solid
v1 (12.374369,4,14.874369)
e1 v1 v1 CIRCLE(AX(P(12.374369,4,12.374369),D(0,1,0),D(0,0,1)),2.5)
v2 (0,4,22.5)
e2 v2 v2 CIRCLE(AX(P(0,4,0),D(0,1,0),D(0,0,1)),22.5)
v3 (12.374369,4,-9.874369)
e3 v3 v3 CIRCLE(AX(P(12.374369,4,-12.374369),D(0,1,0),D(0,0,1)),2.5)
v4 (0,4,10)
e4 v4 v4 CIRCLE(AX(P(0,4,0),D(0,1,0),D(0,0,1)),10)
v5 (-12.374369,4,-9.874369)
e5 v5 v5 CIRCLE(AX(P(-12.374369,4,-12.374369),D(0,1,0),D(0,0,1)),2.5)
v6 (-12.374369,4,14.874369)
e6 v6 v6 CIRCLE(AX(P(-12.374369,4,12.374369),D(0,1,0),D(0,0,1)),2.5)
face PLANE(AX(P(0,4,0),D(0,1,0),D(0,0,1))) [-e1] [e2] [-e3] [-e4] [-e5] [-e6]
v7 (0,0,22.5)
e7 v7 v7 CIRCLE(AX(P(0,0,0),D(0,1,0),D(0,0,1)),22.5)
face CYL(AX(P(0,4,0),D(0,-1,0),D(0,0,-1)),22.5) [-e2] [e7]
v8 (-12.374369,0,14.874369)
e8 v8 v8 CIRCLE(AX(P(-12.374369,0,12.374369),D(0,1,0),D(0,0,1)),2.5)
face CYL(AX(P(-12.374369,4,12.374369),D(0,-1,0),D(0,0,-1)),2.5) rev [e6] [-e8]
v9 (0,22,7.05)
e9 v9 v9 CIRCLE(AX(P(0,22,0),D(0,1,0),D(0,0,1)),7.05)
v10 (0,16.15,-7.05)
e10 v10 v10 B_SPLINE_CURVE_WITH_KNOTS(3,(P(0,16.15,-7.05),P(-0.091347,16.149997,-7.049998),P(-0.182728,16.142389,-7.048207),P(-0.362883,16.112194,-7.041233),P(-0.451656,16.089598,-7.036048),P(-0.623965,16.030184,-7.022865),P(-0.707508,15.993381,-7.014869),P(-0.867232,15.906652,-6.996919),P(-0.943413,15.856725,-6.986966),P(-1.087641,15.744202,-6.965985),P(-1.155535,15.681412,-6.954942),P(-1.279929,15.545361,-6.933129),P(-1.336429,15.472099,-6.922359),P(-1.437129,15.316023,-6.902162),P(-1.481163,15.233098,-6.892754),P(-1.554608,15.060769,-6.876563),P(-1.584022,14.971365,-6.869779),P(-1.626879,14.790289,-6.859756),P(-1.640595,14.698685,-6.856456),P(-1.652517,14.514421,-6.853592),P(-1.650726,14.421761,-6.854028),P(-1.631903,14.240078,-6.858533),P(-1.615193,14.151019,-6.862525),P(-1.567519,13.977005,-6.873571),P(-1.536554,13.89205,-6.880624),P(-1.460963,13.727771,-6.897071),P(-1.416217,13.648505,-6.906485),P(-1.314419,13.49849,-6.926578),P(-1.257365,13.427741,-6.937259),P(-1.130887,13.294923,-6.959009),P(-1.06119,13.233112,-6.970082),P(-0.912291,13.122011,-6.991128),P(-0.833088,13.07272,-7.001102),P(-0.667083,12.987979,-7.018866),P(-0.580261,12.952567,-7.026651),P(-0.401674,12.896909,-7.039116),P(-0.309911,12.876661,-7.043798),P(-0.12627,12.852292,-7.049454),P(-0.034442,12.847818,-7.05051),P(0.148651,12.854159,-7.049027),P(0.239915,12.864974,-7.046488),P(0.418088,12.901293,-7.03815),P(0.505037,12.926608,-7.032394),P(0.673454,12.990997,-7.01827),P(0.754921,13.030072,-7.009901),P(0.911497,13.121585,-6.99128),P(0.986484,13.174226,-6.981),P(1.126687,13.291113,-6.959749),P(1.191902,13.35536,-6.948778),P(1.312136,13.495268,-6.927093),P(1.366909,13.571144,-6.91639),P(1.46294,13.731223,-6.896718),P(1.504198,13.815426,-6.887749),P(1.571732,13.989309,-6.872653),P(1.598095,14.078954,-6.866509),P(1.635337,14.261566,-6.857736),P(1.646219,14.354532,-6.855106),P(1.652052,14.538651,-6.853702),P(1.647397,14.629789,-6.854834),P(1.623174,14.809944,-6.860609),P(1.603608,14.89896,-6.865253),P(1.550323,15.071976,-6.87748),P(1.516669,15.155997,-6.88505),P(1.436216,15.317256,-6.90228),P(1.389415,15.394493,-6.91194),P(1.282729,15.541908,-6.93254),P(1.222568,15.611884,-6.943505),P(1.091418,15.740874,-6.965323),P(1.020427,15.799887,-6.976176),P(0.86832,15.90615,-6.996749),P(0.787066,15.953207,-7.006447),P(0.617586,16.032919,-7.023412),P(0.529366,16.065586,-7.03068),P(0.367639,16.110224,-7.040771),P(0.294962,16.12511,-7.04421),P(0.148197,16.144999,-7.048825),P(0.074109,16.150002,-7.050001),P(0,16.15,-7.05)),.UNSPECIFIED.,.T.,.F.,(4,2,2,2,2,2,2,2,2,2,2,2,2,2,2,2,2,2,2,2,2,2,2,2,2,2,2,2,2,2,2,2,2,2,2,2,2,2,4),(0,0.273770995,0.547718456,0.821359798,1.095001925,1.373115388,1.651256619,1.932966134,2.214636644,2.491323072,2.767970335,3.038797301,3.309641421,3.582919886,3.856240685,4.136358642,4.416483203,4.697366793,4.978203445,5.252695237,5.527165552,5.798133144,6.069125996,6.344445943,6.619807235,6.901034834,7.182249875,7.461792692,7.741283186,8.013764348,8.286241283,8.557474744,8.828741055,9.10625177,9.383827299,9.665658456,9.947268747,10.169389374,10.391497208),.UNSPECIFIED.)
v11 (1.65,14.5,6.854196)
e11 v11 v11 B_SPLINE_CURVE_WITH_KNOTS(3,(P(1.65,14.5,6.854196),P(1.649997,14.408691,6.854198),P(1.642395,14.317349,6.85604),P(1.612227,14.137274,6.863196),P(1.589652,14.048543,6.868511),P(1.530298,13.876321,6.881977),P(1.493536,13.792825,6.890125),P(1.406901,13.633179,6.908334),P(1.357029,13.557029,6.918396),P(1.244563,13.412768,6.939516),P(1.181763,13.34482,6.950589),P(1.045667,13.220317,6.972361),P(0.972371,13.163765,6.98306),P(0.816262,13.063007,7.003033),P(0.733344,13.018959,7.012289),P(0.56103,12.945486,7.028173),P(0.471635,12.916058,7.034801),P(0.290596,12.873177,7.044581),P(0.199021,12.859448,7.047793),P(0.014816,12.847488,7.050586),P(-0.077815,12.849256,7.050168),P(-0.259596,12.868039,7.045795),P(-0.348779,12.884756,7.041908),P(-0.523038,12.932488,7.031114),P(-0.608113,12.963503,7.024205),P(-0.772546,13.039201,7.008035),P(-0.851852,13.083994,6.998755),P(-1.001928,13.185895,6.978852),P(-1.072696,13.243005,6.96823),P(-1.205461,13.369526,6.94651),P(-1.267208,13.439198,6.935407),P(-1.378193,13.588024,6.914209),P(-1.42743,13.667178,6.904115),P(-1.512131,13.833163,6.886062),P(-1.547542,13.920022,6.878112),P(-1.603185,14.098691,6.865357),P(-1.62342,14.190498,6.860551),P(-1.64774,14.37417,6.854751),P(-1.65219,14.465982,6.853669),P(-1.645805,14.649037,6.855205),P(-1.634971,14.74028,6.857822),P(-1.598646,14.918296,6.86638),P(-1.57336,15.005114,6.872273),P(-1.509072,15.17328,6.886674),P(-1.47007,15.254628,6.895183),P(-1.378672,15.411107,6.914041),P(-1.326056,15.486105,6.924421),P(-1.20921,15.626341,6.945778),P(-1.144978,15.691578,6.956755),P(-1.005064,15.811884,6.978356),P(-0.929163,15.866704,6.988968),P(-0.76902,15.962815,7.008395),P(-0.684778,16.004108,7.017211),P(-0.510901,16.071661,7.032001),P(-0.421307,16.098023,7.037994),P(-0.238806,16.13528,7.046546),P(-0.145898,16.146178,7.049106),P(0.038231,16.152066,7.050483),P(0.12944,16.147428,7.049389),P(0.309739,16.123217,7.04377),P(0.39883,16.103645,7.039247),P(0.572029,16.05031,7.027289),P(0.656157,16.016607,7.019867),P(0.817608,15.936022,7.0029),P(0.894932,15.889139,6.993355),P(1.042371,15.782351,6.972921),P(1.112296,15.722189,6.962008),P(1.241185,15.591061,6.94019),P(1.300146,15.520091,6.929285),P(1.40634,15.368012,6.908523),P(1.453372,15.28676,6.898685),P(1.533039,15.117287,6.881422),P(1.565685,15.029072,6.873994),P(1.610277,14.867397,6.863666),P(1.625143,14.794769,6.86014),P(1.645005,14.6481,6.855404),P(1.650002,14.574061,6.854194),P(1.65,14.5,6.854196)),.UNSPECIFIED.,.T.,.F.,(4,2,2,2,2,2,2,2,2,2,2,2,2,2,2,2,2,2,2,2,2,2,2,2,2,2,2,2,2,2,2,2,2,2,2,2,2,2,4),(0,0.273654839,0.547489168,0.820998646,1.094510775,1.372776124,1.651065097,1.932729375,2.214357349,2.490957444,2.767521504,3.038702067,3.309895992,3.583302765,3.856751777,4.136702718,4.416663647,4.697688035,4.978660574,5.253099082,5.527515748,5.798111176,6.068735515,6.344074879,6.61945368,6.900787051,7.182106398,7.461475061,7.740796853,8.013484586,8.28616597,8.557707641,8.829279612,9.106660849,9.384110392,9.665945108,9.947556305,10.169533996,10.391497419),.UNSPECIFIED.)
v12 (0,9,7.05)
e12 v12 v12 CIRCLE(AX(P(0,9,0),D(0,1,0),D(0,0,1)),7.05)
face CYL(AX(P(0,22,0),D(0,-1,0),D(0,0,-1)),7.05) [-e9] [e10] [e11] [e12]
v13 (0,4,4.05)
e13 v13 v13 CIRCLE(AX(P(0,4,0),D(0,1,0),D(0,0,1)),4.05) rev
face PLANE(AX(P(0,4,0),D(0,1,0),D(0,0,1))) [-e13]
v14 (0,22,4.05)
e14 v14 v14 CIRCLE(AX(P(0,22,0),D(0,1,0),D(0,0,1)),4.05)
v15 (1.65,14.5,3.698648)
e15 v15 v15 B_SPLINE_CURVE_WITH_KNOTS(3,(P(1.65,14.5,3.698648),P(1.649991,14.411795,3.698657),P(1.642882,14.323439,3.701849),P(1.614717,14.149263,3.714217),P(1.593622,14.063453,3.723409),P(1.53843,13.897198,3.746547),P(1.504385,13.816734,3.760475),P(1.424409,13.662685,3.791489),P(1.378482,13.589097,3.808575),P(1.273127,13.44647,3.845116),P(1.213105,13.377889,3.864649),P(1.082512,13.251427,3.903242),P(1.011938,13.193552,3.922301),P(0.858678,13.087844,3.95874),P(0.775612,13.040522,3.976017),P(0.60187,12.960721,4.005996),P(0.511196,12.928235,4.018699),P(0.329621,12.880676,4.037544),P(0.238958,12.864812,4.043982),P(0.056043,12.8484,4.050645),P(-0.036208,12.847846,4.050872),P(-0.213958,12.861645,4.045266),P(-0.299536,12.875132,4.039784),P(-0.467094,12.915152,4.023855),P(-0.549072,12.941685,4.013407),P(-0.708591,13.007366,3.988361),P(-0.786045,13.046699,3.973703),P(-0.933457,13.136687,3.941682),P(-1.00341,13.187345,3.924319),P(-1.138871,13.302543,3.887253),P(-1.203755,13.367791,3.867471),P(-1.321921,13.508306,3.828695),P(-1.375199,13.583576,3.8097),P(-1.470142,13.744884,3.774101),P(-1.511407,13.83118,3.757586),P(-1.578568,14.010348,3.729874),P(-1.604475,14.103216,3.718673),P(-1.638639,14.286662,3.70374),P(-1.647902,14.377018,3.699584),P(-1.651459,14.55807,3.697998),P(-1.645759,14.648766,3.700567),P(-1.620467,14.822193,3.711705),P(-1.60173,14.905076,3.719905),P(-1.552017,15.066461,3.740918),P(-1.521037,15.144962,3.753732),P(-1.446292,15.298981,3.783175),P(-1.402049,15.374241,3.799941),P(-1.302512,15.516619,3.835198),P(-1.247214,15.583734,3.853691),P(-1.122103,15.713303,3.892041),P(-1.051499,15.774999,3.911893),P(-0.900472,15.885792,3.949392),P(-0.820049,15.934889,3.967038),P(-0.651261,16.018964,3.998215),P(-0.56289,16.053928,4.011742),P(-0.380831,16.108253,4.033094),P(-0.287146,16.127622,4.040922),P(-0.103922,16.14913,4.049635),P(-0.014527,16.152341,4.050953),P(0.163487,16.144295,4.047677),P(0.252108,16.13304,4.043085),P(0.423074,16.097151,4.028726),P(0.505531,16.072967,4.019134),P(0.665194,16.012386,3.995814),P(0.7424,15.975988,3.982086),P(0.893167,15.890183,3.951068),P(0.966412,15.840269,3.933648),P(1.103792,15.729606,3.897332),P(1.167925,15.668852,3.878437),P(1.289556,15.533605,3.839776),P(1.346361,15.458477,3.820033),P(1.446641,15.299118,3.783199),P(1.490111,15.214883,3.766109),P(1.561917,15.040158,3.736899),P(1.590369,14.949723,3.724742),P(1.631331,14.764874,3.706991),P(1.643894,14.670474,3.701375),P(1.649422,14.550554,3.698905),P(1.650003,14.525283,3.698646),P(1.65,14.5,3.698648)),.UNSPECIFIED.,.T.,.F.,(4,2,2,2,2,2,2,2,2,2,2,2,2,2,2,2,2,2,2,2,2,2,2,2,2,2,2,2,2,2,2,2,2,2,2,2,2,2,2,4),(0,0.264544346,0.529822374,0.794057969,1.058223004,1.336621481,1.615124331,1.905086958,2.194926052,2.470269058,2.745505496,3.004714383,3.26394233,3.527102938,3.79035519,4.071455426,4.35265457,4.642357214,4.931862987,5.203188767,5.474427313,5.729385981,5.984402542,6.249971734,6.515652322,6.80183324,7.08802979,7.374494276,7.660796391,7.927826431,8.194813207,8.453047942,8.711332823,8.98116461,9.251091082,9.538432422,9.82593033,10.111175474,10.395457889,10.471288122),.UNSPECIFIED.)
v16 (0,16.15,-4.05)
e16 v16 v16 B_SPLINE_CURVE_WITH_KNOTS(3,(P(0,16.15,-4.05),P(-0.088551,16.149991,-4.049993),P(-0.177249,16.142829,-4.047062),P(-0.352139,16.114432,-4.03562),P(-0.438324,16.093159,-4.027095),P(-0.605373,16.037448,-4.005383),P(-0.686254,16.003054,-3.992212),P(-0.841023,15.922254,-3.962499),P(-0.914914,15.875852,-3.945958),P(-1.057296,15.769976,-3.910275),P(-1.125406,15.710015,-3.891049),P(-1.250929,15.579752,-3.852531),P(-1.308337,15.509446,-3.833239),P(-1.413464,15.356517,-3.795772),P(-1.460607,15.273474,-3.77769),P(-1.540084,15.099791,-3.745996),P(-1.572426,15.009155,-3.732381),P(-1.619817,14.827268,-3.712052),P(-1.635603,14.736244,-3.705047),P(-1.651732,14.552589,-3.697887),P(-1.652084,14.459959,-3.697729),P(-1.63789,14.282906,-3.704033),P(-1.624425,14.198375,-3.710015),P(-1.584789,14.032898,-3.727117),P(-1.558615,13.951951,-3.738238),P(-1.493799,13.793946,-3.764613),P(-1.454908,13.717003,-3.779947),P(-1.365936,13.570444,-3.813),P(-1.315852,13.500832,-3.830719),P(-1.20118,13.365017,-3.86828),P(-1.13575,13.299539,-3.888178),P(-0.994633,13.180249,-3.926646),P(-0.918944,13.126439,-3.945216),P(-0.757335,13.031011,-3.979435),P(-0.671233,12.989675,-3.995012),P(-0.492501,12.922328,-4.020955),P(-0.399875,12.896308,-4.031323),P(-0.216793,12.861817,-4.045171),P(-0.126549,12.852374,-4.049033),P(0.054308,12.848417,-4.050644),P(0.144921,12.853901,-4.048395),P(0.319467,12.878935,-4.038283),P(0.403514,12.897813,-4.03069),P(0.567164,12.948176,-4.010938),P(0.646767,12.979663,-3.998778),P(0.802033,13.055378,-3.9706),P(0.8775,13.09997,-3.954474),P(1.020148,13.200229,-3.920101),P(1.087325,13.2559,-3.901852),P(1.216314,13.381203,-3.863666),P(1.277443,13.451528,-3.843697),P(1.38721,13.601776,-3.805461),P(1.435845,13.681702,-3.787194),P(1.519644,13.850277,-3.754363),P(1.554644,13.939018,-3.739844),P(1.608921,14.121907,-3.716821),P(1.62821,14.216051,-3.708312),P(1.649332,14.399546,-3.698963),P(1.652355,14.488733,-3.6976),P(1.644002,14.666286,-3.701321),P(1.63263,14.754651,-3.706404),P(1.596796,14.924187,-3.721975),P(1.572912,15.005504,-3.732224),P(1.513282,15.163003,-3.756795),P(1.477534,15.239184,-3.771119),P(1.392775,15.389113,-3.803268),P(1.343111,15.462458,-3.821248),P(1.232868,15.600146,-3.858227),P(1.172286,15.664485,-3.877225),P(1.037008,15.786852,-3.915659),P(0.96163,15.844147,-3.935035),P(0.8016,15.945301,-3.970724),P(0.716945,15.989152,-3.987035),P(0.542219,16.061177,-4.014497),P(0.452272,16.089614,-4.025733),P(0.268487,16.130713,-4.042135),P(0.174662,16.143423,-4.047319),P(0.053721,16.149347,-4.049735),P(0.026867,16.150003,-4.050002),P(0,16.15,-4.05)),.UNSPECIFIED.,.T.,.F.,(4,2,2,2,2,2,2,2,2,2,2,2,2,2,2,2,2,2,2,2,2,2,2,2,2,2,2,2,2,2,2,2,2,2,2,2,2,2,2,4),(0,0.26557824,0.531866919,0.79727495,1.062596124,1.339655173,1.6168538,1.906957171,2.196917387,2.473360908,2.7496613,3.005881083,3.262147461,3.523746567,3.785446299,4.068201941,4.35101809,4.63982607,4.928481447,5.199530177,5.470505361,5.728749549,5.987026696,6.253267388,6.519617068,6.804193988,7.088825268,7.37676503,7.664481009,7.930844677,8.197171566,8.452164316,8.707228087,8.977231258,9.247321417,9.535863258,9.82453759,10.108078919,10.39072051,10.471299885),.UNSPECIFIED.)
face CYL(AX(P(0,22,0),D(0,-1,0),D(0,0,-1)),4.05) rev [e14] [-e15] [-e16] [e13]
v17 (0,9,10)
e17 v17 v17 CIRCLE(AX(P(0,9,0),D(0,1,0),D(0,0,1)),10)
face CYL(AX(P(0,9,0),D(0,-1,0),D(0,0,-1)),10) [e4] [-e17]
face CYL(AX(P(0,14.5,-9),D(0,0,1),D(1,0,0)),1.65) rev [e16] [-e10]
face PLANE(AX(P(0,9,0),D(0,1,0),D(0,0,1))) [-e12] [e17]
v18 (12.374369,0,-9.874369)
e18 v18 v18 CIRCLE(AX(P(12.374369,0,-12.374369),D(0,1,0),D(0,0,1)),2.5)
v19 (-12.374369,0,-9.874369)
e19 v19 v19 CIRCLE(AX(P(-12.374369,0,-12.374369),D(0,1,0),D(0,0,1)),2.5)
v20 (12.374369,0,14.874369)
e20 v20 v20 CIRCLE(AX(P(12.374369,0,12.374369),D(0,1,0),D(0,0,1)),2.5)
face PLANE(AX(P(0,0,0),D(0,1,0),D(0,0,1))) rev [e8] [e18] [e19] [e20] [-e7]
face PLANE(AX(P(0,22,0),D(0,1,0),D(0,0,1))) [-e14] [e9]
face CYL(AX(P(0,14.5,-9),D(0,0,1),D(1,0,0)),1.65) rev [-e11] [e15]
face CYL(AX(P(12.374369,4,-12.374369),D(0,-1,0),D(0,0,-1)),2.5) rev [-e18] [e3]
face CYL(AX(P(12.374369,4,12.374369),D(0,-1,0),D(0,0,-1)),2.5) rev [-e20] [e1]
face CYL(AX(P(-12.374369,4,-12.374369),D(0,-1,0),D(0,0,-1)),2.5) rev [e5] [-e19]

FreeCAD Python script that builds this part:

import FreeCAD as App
import Part
import Sketcher

doc = App.newDocument("Part")
body = doc.addObject("PartDesign::Body", "Body")

sketch1 = doc.addObject("Sketcher::SketchObject", "Sketch")
body.addObject(sketch1)
sketch1.AttachmentSupport = (doc.XZ_Plane, [""])
sketch1.MapMode = "FlatFace"
sketch1.addGeometry([
    Part.Circle(App.Vector(0, 0, 0), App.Vector(0, 0, 1), 22.5),
    Part.Circle(App.Vector(-12.4, -12.4, 0), App.Vector(0, 0, 1), 2.5),
    Part.Circle(App.Vector(-12.4, 12.4, 0), App.Vector(0, 0, 1), 2.5),
    Part.Circle(App.Vector(12.4, -12.4, 0), App.Vector(0, 0, 1), 2.5),
    Part.Circle(App.Vector(12.4, 12.4, 0), App.Vector(0, 0, 1), 2.5),
], False)
sketch1.addConstraint([
    Sketcher.Constraint("Coincident", 0, 3, -1, 1),
    Sketcher.Constraint("Equal", 1, 2),
    Sketcher.Constraint("Equal", 2, 3),
    Sketcher.Constraint("Equal", 3, 4),
    Sketcher.Constraint("Symmetric", 2, 3, 3, 3, -1, 1),
    Sketcher.Constraint("Symmetric", 1, 3, 4, 3, -1, 1),
    Sketcher.Constraint("Symmetric", 1, 3, 3, 3, -2),
    Sketcher.Constraint("Diameter", 0, 45.0),
    Sketcher.Constraint("Diameter", 1, 5.0),
    Sketcher.Constraint("DistanceX", 1, 3, -1, 1, 12.374369),
    Sketcher.Constraint("DistanceY", 1, 3, -1, 1, 12.374369),
])
pad1 = doc.addObject("PartDesign::Pad", "Pad")
body.addObject(pad1)
pad1.Profile = sketch1
pad1.Length = 4
pad1.Reversed = True

sketch2 = doc.addObject("Sketcher::SketchObject", "Sketch001")
body.addObject(sketch2)
sketch2.AttachmentSupport = (doc.XZ_Plane, [""])
sketch2.MapMode = "FlatFace"
sketch2.AttachmentOffset = App.Placement(App.Vector(0, 0, -4), App.Rotation())
sketch2.addGeometry([
    Part.Circle(App.Vector(0, 0, 0), App.Vector(0, 0, 1), 7),
    Part.Circle(App.Vector(0, 0, 0), App.Vector(0, 0, 1), 4),
], False)
sketch2.addConstraint([
    Sketcher.Constraint("Coincident", 0, 3, -1, 1),
    Sketcher.Constraint("Coincident", 1, 3, -1, 1),
    Sketcher.Constraint("Diameter", 0, 14.1),
    Sketcher.Constraint("Diameter", 1, 8.1),
])
pad2 = doc.addObject("PartDesign::Pad", "Pad001")
body.addObject(pad2)
pad2.Profile = sketch2
pad2.Length = 18
pad2.Reversed = True

sketch3 = doc.addObject("Sketcher::SketchObject", "Sketch002")
body.addObject(sketch3)
sketch3.AttachmentSupport = (doc.XY_Plane, [""])
sketch3.MapMode = "FlatFace"
sketch3.addGeometry(Part.Circle(App.Vector(0, 14.5, 0), App.Vector(0, 0, 1), 1.6), False)
sketch3.addConstraint([
    Sketcher.Constraint("PointOnObject", 0, 3, -2),
    Sketcher.Constraint("Diameter", 0, 3.3),
    Sketcher.Constraint("DistanceY", -1, 1, 0, 3, 14.5),
])
pocket1 = doc.addObject("PartDesign::Pocket", "Pocket")
body.addObject(pocket1)
pocket1.Profile = sketch3
pocket1.Length = 18
pocket1.Midplane = True

sketch4 = doc.addObject("Sketcher::SketchObject", "Sketch003")
body.addObject(sketch4)
sketch4.AttachmentSupport = (doc.XZ_Plane, [""])
sketch4.MapMode = "FlatFace"
sketch4.AttachmentOffset = App.Placement(App.Vector(0, 0, -4), App.Rotation())
sketch4.addGeometry([
    Part.Circle(App.Vector(0, 0, 0), App.Vector(0, 0, 1), 10),
    Part.Circle(App.Vector(0, 0, 0), App.Vector(0, 0, 1), 7),
], False)
sketch4.addConstraint([
    Sketcher.Constraint("Coincident", 0, 3, -1, 1),
    Sketcher.Constraint("Coincident", 1, 3, -1, 1),
    Sketcher.Constraint("Diameter", 0, 20.0),
    Sketcher.Constraint("Diameter", 1, 14.0),
])
pad3 = doc.addObject("PartDesign::Pad", "Pad002")
body.addObject(pad3)
pad3.Profile = sketch4
pad3.Length = 5
pad3.Reversed = True

doc.recompute()
